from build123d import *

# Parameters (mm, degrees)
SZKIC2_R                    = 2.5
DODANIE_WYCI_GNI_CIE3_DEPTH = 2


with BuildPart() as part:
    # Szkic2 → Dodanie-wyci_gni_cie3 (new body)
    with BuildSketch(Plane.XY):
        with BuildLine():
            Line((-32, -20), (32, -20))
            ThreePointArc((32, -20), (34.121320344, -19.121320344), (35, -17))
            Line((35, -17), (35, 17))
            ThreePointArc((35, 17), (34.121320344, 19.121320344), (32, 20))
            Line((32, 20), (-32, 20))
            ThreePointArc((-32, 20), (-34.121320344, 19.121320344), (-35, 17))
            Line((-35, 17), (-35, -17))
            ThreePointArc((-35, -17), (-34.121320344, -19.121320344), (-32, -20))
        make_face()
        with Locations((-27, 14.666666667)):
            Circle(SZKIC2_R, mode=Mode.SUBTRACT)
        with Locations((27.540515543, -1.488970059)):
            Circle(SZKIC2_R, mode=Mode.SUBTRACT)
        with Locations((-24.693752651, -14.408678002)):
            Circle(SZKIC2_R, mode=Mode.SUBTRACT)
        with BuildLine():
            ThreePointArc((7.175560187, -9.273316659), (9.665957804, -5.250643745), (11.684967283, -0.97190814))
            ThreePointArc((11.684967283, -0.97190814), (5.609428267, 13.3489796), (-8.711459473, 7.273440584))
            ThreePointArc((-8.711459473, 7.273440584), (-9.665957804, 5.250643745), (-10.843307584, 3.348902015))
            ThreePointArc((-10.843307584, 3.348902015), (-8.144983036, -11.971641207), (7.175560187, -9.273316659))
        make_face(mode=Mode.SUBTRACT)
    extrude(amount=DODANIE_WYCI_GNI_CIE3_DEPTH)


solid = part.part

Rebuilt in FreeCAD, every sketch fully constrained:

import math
import FreeCAD as App
import Part
import Sketcher

V = App.Vector

doc = App.newDocument("Part")
params = doc.addObject("Spreadsheet::Sheet", "Params")
for row, (alias, value) in enumerate([
    ("sketch1_diameter", "5 mm"),
    ("sketch1_radius", "3 mm"),
    ("sketch1_radius2", "11 mm"),
    ("sketch1_width", "64 mm"),
    ("sketch1_height", "34 mm"),
    ("pad1_length", "2 mm"),
], start=1):
    params.set(f"A{row}", alias)
    params.set(f"B{row}", "=" + value)
    params.setAlias(f"B{row}", alias)

body = doc.addObject("PartDesign::Body", "Body")

# Sketch on XY plane
sketch1 = body.newObject("Sketcher::SketchObject", "Sketch")
sketch1.AttachmentSupport = (doc.getObject("XY_Plane"), [""])
sketch1.MapMode = "FlatFace"
sketch1.addGeometry(Part.LineSegment(V(-32, -20, 0), V(32, -20, 0)), False)
sketch1.addGeometry(Part.ArcOfCircle(Part.Circle(V(32, -17, 0), V(0, 0, 1), 3), math.radians(-90), math.radians(0)), False)
sketch1.addGeometry(Part.LineSegment(V(35, -17, 0), V(35, 17, 0)), False)
sketch1.addGeometry(Part.ArcOfCircle(Part.Circle(V(32, 17, 0), V(0, 0, 1), 3), math.radians(0), math.radians(90)), False)
sketch1.addGeometry(Part.LineSegment(V(32, 20, 0), V(-32, 20, 0)), False)
sketch1.addGeometry(Part.ArcOfCircle(Part.Circle(V(-32, 17, 0), V(0, 0, 1), 3), math.radians(90), math.radians(180)), False)
sketch1.addGeometry(Part.LineSegment(V(-35, 17, 0), V(-35, -17, 0)), False)
sketch1.addGeometry(Part.ArcOfCircle(Part.Circle(V(-32, -17, 0), V(0, 0, 1), 3), math.radians(180), math.radians(270)), False)
sketch1.addGeometry(Part.Circle(V(-24.7, -14.4, 0), V(0, 0, 1), 2.5), False)
sketch1.addGeometry(Part.ArcOfCircle(Part.Circle(V(-27, 14.7, 0), V(0, 0, 1), 41.7), math.radians(-35.01), math.radians(-22.01)), False)
sketch1.addGeometry(Part.ArcOfCircle(Part.Circle(V(-1.8, -3, 0), V(0, 0, 1), 11), math.radians(145), math.radians(325)), False)
sketch1.addGeometry(Part.ArcOfCircle(Part.Circle(V(-27, 14.7, 0), V(0, 0, 1), 19.7), math.radians(-35.01), math.radians(-22.01)), False)
sketch1.addGeometry(Part.ArcOfCircle(Part.Circle(V(1.5, 3.2, 0), V(0, 0, 1), 11), math.radians(-22), math.radians(158)), False)
sketch1.addGeometry(Part.Circle(V(27.5, -1.5, 0), V(0, 0, 1), 2.5), False)
sketch1.addGeometry(Part.Circle(V(-27, 14.7, 0), V(0, 0, 1), 2.5), False)
sketch1.addConstraint(Sketcher.Constraint("Tangent", 0, 2, 1, 1))
sketch1.addConstraint(Sketcher.Constraint("Tangent", 1, 2, 2, 1))
sketch1.addConstraint(Sketcher.Constraint("Tangent", 2, 2, 3, 1))
sketch1.addConstraint(Sketcher.Constraint("Tangent", 3, 2, 4, 1))
sketch1.addConstraint(Sketcher.Constraint("Tangent", 4, 2, 5, 1))
sketch1.addConstraint(Sketcher.Constraint("Tangent", 5, 2, 6, 1))
sketch1.addConstraint(Sketcher.Constraint("Tangent", 6, 2, 7, 1))
sketch1.addConstraint(Sketcher.Constraint("Tangent", 7, 2, 0, 1))
sketch1.addConstraint(Sketcher.Constraint("Tangent", 9, 1, 10, 2))
sketch1.addConstraint(Sketcher.Constraint("Tangent", 10, 1, 11, 1))
sketch1.addConstraint(Sketcher.Constraint("Tangent", 11, 2, 12, 2))
sketch1.addConstraint(Sketcher.Constraint("Tangent", 12, 1, 9, 2))
sketch1.addConstraint(Sketcher.Constraint("Horizontal", 0))
sketch1.addConstraint(Sketcher.Constraint("Vertical", 2))
sketch1.addConstraint(Sketcher.Constraint("Horizontal", 4))
sketch1.addConstraint(Sketcher.Constraint("Vertical", 6))
sketch1.addConstraint(Sketcher.Constraint("Coincident", 11, 3, 9, 3))
sketch1.addConstraint(Sketcher.Constraint("Coincident", 14, 3, 9, 3))
sketch1.addConstraint(Sketcher.Constraint("Equal", 1, 3))
sketch1.addConstraint(Sketcher.Constraint("Equal", 3, 5))
sketch1.addConstraint(Sketcher.Constraint("Equal", 5, 7))
sketch1.addConstraint(Sketcher.Constraint("Equal", 8, 13))
sketch1.addConstraint(Sketcher.Constraint("Equal", 13, 14))
sketch1.addConstraint(Sketcher.Constraint("Symmetric", 1, 3, 5, 3, -1, 1))
sketch1.addConstraint(Sketcher.Constraint("Diameter", 8, 5.0))
sketch1.addConstraint(Sketcher.Constraint("Radius", 1, 3.0))
sketch1.addConstraint(Sketcher.Constraint("Radius", 10, 11.0))
sketch1.addConstraint(Sketcher.Constraint("DistanceX", 0, 1, 0, 2, 64.0))
sketch1.addConstraint(Sketcher.Constraint("DistanceY", 2, 1, 2, 2, 34.0))
sketch1.addConstraint(Sketcher.Constraint("DistanceX", 9, 3, -1, 1, 27.0))
sketch1.addConstraint(Sketcher.Constraint("Radius", 9, 41.726391))
sketch1.addConstraint(Sketcher.Constraint("DistanceY", 12, 3, 9, 3, 11.5159))
sketch1.addConstraint(Sketcher.Constraint("DistanceY", 10, 3, 12, 1, 1.990299))
sketch1.addConstraint(Sketcher.Constraint("DistanceY", 8, 3, -1, 1, 14.408678))
sketch1.addConstraint(Sketcher.Constraint("DistanceY", 13, 3, -1, 1, 1.48897))
sketch1.addConstraint(Sketcher.Constraint("DistanceY", -1, 1, 11, 2, 7.273441))
sketch1.addConstraint(Sketcher.Constraint("DistanceX", 8, 3, 10, 3, 22.859879))
sketch1.addConstraint(Sketcher.Constraint("DistanceX", 12, 3, 13, 3, 26.053762))
sketch1.setExpression("Constraints[24]", "Params.sketch1_diameter")
sketch1.setExpression("Constraints[25]", "Params.sketch1_radius")
sketch1.setExpression("Constraints[26]", "Params.sketch1_radius2")
sketch1.setExpression("Constraints[27]", "Params.sketch1_width")
sketch1.setExpression("Constraints[28]", "Params.sketch1_height")
pad1 = body.newObject("PartDesign::Pad", "Pad")
pad1.Profile = sketch1
pad1.setExpression("Length", "Params.pad1_length")

doc.recompute()
